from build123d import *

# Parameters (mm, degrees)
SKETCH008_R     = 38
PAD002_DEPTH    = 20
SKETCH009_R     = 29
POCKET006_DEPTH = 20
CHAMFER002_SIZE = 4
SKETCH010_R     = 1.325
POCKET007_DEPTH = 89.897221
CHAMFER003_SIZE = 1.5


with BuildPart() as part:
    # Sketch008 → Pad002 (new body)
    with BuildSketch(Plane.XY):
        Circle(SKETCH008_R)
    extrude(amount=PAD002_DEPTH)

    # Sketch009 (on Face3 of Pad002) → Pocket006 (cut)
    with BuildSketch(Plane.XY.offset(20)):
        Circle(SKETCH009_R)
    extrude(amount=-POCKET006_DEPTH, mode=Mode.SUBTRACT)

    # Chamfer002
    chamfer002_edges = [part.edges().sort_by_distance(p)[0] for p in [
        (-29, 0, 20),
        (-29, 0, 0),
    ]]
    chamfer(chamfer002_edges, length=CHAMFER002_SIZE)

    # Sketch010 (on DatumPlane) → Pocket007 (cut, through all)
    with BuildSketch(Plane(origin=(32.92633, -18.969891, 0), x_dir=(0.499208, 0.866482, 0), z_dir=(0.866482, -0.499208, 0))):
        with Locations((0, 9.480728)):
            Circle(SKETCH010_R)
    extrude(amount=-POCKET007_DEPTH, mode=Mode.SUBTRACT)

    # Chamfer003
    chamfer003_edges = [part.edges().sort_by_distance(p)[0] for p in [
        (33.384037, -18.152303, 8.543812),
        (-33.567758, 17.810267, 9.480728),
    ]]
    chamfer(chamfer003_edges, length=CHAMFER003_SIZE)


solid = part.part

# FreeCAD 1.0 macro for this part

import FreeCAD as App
import Part
import Sketcher

V = App.Vector


def edges_at(feature, points):
    """Names of the edges that pass closest to the given points."""
    edges = feature.Shape.Edges
    near = lambda p: min(range(len(edges)), key=lambda i: edges[i].distToShape(Part.Vertex(*p))[0])
    return sorted({f"Edge{near(p) + 1}" for p in points})

doc = App.newDocument("Part")
body = doc.addObject("PartDesign::Body", "Body")

# Sketch on XY plane
sketch1 = body.newObject("Sketcher::SketchObject", "Sketch")
sketch1.AttachmentSupport = (doc.getObject("XY_Plane"), [""])
sketch1.MapMode = "FlatFace"
sketch1.addGeometry(Part.Circle(V(0, 0, 0), V(0, 0, 1), 38), False)
sketch1.addConstraint(Sketcher.Constraint("Coincident", 0, 3, -1, 1))
sketch1.addConstraint(Sketcher.Constraint("Diameter", 0, 76.0))
pad1 = body.newObject("PartDesign::Pad", "Pad")
pad1.Profile = sketch1
pad1.Length = 20

# Sketch on XY plane
sketch2 = body.newObject("Sketcher::SketchObject", "Sketch001")
sketch2.AttachmentSupport = (doc.getObject("XY_Plane"), [""])
sketch2.MapMode = "FlatFace"
sketch2.AttachmentOffset = App.Placement(V(0, 0, 20), App.Rotation())
sketch2.addGeometry(Part.Circle(V(0, 0, 0), V(0, 0, 1), 29), False)
sketch2.addConstraint(Sketcher.Constraint("Coincident", 0, 3, -1, 1))
sketch2.addConstraint(Sketcher.Constraint("Diameter", 0, 58.0))
pocket1 = body.newObject("PartDesign::Pocket", "Pocket")
pocket1.Profile = sketch2
pocket1.Length = 20
doc.recompute()

chamfer = body.newObject("PartDesign::Chamfer", "Chamfer")
chamfer.Base = (pocket1, edges_at(pocket1, [(-29, 0, 20), (-29, 0, 0)]))
chamfer.Size = 4

# Sketch on an angled plane
sketch3 = body.newObject("Sketcher::SketchObject", "Sketch002")
sketch3.Placement = App.Placement(V(32.92633, -18.969891, 0), App.Rotation(V(0.499208079, 0.866482137, 0), V(0, 0, 1), V(0.866482137, -0.499208079, 0), "ZXY"))
sketch3.addGeometry(Part.Circle(V(0, 9.480728, 0), V(0, 0, 1), 1.325), False)
sketch3.addConstraint(Sketcher.Constraint("PointOnObject", 0, 3, -2))
sketch3.addConstraint(Sketcher.Constraint("Diameter", 0, 2.65))
sketch3.addConstraint(Sketcher.Constraint("DistanceY", -1, 1, 0, 3, 9.480728))
pocket2 = body.newObject("PartDesign::Pocket", "Pocket001")
pocket2.Profile = sketch3
pocket2.Type = "ThroughAll"
doc.recompute()

chamfer2 = body.newObject("PartDesign::Chamfer", "Chamfer001")
chamfer2.Base = (pocket2, edges_at(pocket2, [(33.385, -18.151, 8.546), (-33.568, 17.81, 9.481)]))
chamfer2.Size = 1.5

doc.recompute()
